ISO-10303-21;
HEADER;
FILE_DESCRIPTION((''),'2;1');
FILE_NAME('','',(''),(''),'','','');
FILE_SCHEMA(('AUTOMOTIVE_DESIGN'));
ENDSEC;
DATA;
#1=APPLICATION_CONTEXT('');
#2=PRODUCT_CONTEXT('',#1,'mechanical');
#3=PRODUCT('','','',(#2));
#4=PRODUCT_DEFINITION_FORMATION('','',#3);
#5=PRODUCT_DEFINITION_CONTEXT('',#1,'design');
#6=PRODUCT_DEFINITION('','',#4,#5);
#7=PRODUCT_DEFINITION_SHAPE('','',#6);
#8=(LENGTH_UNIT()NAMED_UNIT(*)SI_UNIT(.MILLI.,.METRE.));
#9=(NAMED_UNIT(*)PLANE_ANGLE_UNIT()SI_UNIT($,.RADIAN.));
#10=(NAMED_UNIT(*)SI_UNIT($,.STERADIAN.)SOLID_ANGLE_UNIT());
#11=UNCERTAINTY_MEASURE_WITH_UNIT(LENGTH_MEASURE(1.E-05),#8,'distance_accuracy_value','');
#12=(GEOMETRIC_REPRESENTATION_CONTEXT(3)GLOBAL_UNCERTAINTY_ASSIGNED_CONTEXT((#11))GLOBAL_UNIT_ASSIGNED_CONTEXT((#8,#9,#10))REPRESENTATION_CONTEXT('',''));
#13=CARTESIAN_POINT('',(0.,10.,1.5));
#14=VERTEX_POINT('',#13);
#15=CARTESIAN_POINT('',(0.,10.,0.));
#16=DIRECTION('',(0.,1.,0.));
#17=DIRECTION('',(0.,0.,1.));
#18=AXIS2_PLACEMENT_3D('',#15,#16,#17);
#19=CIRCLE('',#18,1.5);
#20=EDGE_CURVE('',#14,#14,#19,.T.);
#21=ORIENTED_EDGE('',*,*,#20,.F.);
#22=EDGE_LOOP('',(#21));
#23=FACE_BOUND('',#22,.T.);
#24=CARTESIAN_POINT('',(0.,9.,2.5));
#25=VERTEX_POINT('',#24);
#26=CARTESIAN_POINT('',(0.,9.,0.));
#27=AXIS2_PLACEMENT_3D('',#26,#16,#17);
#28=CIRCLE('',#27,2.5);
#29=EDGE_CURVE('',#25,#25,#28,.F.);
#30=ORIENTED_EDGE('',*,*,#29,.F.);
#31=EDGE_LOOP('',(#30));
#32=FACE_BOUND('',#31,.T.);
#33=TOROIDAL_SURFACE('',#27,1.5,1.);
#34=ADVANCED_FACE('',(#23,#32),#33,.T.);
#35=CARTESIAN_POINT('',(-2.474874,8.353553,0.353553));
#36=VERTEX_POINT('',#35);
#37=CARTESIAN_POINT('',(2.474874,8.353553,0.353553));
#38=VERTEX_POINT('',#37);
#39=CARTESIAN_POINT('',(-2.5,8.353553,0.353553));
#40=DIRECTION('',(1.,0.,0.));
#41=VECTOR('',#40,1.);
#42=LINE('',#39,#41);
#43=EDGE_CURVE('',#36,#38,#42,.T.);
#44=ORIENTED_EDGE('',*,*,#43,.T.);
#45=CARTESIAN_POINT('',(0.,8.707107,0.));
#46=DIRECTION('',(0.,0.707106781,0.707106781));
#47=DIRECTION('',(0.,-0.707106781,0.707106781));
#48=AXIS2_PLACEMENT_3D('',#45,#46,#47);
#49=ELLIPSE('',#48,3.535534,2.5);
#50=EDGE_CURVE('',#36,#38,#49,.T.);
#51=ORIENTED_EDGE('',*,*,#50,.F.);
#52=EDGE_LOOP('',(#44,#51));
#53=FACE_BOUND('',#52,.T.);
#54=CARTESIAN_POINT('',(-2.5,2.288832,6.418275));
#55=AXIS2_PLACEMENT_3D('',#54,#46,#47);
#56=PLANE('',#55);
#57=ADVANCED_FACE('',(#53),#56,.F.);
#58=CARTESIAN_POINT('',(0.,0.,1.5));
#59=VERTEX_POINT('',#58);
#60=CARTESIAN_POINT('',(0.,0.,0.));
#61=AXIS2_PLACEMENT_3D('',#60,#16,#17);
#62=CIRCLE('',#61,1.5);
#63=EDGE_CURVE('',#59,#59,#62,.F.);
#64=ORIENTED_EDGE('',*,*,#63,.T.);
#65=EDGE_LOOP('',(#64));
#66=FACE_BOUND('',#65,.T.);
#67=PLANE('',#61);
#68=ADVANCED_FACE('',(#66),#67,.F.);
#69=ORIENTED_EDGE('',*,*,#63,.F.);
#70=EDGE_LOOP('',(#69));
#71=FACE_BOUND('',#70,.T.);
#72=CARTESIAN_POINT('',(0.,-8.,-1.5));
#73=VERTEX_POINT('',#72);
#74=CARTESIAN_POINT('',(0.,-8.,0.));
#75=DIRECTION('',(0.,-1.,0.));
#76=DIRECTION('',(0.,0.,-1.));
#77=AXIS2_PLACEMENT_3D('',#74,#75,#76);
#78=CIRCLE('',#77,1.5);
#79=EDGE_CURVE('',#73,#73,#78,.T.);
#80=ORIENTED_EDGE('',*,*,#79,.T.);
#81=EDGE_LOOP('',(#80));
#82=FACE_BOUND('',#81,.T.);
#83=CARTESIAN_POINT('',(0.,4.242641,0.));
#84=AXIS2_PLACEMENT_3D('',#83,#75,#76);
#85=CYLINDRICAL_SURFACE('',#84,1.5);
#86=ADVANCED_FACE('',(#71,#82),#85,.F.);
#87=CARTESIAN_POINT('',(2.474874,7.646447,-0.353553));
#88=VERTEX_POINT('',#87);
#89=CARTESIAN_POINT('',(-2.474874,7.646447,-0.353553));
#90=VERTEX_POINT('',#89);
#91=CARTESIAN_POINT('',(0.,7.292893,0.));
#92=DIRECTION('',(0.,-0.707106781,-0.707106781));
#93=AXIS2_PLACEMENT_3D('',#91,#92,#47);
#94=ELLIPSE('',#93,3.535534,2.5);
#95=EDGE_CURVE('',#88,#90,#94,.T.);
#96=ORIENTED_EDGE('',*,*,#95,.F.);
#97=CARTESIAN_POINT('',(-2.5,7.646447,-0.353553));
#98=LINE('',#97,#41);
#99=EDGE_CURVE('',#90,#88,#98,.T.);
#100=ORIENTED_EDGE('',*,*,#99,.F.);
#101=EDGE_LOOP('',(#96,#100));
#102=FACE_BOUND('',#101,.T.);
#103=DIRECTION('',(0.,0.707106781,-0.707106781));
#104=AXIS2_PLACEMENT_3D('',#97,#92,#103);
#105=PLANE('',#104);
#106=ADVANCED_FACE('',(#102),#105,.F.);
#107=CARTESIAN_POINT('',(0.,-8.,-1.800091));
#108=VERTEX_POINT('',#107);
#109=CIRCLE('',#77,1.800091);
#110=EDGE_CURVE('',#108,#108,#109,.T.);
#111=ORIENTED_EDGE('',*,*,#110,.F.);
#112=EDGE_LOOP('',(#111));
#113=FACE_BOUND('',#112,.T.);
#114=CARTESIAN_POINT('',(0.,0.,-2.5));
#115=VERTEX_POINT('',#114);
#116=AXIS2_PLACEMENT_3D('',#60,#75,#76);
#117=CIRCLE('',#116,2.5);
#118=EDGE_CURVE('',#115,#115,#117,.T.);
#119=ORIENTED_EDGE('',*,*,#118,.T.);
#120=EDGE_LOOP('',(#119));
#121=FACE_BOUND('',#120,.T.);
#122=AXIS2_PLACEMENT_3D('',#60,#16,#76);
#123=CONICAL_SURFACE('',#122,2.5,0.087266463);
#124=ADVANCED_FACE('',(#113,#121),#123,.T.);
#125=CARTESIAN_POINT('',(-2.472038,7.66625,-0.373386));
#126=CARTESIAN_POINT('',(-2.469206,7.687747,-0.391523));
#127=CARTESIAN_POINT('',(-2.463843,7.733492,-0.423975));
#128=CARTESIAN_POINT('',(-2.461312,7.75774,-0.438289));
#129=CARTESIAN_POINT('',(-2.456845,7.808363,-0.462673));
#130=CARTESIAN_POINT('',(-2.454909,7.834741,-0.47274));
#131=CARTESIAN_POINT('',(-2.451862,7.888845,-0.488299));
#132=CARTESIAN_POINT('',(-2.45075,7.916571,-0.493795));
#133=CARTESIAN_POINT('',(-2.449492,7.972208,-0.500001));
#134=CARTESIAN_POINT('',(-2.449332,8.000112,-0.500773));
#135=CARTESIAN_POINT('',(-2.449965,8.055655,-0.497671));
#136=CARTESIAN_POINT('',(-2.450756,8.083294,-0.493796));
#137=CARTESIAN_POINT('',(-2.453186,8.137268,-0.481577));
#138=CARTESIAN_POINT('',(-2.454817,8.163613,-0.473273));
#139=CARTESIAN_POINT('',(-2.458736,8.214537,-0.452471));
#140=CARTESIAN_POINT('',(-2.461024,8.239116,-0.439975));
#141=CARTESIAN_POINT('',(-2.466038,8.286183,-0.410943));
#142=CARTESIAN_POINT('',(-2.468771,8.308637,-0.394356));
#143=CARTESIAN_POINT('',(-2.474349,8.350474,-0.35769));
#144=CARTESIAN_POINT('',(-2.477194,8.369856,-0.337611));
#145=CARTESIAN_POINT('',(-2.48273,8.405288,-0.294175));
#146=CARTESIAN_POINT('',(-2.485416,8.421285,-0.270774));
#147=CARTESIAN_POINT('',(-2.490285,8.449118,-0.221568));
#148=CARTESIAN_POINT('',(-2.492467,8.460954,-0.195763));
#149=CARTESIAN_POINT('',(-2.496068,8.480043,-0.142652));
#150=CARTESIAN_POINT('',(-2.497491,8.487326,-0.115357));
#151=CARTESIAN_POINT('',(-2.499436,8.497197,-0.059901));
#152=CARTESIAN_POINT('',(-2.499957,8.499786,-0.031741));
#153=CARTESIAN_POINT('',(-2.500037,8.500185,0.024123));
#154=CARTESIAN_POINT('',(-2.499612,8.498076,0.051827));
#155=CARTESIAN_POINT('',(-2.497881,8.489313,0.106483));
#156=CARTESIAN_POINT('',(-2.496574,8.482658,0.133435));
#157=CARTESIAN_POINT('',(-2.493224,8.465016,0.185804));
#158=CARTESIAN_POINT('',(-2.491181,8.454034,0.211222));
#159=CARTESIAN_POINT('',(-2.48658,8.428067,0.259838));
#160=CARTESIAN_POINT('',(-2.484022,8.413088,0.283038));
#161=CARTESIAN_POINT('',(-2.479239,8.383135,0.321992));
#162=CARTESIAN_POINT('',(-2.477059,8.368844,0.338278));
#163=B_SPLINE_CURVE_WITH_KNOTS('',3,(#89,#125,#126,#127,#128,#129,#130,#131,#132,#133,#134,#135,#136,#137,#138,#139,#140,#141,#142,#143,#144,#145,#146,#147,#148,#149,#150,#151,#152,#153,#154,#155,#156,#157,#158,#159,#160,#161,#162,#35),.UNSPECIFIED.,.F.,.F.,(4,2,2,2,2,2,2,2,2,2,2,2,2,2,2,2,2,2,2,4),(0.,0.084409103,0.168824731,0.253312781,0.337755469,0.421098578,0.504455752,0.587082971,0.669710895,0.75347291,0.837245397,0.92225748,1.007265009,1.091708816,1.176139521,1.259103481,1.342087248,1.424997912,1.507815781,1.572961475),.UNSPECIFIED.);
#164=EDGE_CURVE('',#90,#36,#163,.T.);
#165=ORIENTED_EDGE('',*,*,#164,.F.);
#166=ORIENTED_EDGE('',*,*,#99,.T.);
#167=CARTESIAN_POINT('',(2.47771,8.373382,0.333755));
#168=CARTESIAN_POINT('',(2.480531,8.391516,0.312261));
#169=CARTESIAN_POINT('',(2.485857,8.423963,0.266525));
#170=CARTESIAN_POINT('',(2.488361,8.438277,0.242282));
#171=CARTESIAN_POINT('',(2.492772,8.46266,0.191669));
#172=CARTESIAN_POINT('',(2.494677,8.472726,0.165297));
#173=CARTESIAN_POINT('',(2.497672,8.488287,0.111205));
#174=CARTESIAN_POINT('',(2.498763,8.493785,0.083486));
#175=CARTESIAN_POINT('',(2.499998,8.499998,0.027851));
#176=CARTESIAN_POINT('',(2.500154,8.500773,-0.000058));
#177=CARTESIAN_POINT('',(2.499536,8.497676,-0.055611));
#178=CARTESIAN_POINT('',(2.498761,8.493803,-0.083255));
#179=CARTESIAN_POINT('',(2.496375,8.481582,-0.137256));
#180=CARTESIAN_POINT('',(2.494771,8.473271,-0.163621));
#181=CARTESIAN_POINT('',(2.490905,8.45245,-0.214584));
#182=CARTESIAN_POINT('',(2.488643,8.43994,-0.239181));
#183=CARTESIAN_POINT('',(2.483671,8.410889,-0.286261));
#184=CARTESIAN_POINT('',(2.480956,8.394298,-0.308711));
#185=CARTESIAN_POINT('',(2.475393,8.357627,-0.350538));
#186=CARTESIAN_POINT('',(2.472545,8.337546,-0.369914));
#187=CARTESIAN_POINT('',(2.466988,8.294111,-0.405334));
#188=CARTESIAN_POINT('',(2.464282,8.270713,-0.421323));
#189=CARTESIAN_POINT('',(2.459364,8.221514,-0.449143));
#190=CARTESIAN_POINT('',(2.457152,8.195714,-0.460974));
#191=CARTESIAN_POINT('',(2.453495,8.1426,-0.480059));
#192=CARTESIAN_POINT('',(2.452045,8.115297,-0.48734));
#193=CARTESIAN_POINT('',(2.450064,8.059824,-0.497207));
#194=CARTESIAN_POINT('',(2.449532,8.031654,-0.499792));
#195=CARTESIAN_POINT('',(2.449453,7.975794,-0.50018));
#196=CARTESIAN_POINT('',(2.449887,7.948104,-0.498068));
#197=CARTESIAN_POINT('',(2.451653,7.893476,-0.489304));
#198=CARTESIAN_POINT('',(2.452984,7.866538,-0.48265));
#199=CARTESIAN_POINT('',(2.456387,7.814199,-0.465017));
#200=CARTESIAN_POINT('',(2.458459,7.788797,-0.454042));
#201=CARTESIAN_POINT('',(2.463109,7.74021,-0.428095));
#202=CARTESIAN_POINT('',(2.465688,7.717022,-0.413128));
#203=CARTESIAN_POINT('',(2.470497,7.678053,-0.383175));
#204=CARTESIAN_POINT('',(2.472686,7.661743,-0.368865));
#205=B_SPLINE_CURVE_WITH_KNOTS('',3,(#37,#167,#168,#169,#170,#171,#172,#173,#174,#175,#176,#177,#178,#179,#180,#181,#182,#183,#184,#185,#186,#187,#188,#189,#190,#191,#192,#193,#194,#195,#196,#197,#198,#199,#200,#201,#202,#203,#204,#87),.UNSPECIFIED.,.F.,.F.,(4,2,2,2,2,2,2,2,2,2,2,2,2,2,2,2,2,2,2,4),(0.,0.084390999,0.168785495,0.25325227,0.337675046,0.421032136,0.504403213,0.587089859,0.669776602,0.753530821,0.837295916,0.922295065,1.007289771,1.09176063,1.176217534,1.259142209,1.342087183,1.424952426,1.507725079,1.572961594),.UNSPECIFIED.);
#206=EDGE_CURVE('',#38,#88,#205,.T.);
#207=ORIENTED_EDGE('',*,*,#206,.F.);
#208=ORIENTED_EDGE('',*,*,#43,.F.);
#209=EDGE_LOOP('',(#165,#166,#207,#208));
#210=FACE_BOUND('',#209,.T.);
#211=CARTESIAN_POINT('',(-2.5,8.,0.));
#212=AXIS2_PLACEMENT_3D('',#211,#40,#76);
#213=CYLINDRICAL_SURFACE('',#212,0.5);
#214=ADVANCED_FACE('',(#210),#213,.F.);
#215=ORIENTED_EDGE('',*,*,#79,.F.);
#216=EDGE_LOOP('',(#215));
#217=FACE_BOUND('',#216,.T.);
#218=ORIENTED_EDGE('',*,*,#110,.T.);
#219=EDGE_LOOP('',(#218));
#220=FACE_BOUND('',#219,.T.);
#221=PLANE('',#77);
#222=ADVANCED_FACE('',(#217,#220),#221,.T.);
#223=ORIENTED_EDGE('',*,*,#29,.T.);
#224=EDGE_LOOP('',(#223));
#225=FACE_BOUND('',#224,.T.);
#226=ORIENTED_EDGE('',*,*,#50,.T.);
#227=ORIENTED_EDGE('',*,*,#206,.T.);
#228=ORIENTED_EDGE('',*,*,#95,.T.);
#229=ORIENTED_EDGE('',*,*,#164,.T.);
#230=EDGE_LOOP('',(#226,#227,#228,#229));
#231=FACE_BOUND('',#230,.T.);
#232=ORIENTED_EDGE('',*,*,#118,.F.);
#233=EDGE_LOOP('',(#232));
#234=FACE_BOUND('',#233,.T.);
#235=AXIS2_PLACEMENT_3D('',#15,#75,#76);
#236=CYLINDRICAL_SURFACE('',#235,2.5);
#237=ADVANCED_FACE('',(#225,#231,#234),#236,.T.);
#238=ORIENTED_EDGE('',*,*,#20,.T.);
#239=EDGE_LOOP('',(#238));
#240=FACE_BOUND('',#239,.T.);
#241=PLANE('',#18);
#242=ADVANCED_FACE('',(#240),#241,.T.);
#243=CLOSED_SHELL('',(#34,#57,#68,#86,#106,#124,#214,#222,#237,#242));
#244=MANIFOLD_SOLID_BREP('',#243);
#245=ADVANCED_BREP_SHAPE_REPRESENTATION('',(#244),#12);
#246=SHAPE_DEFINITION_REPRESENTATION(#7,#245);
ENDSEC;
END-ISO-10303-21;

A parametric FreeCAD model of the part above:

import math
import FreeCAD as App
import Part
import Sketcher
from FreeCAD import Vector
Q = App.Units.Quantity


def edges_at(feature, points):
    """Names of the edges that pass closest to the given points."""
    edges = feature.Shape.Edges
    near = lambda p: min(range(len(edges)), key=lambda i: edges[i].distToShape(Part.Vertex(*p))[0])
    return sorted({f"Edge{near(p) + 1}" for p in points})

doc = App.newDocument("Part")
body = doc.addObject("PartDesign::Body", "Body")

# Sketch on XZ plane
sketch1 = body.newObject("Sketcher::SketchObject", "Sketch")
sketch1.AttachmentSupport = (doc.getObject("XZ_Plane"), [""])
sketch1.MapMode = "FlatFace"
sketch1.addGeometry(Part.Circle(Vector(0, 0, 0), Vector(0, 0, 1), 2.5), False)
sketch1.addConstraint(Sketcher.Constraint("Coincident", 0, 3, -1, 1))
sketch1.addConstraint(Sketcher.Constraint("Diameter", 0, 5.0))
pad1 = body.newObject("PartDesign::Pad", "Pad")
pad1.Profile = sketch1
pad1.Length = 10
pad1.Reversed = True

# Sketch on XZ plane
sketch2 = body.newObject("Sketcher::SketchObject", "Sketch001")
sketch2.AttachmentSupport = (doc.getObject("XZ_Plane"), [""])
sketch2.MapMode = "FlatFace"
sketch2.addGeometry(Part.Circle(Vector(0, 0, 0), Vector(0, 0, 1), 2.5), False)
sketch2.addConstraint(Sketcher.Constraint("Coincident", 0, 3, -1, 1))
sketch2.addConstraint(Sketcher.Constraint("Diameter", 0, 5.0))
pad2 = body.newObject("PartDesign::Pad", "Pad001")
pad2.Profile = sketch2
pad2.Length = 8
pad2.TaperAngle = -5

# Sketch on XZ plane
sketch3 = body.newObject("Sketcher::SketchObject", "Sketch002")
sketch3.AttachmentSupport = (doc.getObject("XZ_Plane"), [""])
sketch3.MapMode = "FlatFace"
sketch3.addGeometry(Part.Circle(Vector(0, 0, 0), Vector(0, 0, 1), 1.5), False)
sketch3.addConstraint(Sketcher.Constraint("Coincident", 0, 3, -1, 1))
sketch3.addConstraint(Sketcher.Constraint("Diameter", 0, 3.0))
pocket1 = body.newObject("PartDesign::Pocket", "Pocket")
pocket1.Profile = sketch3
pocket1.Length = 8
pocket1.Reversed = True
doc.recompute()

fillet = body.newObject("PartDesign::Fillet", "Fillet")
fillet.Base = (pocket1, edges_at(pocket1, [(-2.5, 10, 0)]))
fillet.Radius = 1

# Sketch on YZ plane
sketch4 = body.newObject("Sketcher::SketchObject", "Sketch003")
sketch4.AttachmentSupport = (doc.getObject("YZ_Plane"), [""])
sketch4.MapMode = "FlatFace"
sketch4.addGeometry(Part.LineSegment(Vector(0.874618, 6.418275, 0), Vector(7.646447, -0.353553, 0)), False)
sketch4.addGeometry(Part.ArcOfCircle(Part.Circle(Vector(8, 0, 0), Vector(0, 0, 1), 0.5), math.radians(-135), math.radians(45)), False)
sketch4.addGeometry(Part.LineSegment(Vector(8.353553, 0.353553, 0), Vector(2.288832, 6.418275, 0)), False)
sketch4.addGeometry(Part.LineSegment(Vector(2.288832, 6.418275, 0), Vector(0.874618, 6.418275, 0)), False)
sketch4.addConstraint(Sketcher.Constraint("Tangent", 0, 2, 1, 1))
sketch4.addConstraint(Sketcher.Constraint("Tangent", 1, 2, 2, 1))
sketch4.addConstraint(Sketcher.Constraint("Coincident", 2, 2, 3, 1))
sketch4.addConstraint(Sketcher.Constraint("Coincident", 3, 2, 0, 1))
sketch4.addConstraint(Sketcher.Constraint("Horizontal", 3))
sketch4.addConstraint(Sketcher.Constraint("PointOnObject", 1, 3, -1))
sketch4.addConstraint(Sketcher.Constraint("Parallel", 0, 2))
sketch4.addConstraint(Sketcher.Constraint("Radius", 1, 0.5))
sketch4.addConstraint(Sketcher.Constraint("Angle", 0, Q("-45 deg")))
sketch4.addConstraint(Sketcher.Constraint("DistanceX", -1, 1, 1, 3, 8.0))
sketch4.addConstraint(Sketcher.Constraint("Distance", 0, 9.576812))
pocket2 = body.newObject("PartDesign::Pocket", "Pocket001")
pocket2.Profile = sketch4
pocket2.Type = "ThroughAll"
pocket2.Midplane = True

doc.recompute()
